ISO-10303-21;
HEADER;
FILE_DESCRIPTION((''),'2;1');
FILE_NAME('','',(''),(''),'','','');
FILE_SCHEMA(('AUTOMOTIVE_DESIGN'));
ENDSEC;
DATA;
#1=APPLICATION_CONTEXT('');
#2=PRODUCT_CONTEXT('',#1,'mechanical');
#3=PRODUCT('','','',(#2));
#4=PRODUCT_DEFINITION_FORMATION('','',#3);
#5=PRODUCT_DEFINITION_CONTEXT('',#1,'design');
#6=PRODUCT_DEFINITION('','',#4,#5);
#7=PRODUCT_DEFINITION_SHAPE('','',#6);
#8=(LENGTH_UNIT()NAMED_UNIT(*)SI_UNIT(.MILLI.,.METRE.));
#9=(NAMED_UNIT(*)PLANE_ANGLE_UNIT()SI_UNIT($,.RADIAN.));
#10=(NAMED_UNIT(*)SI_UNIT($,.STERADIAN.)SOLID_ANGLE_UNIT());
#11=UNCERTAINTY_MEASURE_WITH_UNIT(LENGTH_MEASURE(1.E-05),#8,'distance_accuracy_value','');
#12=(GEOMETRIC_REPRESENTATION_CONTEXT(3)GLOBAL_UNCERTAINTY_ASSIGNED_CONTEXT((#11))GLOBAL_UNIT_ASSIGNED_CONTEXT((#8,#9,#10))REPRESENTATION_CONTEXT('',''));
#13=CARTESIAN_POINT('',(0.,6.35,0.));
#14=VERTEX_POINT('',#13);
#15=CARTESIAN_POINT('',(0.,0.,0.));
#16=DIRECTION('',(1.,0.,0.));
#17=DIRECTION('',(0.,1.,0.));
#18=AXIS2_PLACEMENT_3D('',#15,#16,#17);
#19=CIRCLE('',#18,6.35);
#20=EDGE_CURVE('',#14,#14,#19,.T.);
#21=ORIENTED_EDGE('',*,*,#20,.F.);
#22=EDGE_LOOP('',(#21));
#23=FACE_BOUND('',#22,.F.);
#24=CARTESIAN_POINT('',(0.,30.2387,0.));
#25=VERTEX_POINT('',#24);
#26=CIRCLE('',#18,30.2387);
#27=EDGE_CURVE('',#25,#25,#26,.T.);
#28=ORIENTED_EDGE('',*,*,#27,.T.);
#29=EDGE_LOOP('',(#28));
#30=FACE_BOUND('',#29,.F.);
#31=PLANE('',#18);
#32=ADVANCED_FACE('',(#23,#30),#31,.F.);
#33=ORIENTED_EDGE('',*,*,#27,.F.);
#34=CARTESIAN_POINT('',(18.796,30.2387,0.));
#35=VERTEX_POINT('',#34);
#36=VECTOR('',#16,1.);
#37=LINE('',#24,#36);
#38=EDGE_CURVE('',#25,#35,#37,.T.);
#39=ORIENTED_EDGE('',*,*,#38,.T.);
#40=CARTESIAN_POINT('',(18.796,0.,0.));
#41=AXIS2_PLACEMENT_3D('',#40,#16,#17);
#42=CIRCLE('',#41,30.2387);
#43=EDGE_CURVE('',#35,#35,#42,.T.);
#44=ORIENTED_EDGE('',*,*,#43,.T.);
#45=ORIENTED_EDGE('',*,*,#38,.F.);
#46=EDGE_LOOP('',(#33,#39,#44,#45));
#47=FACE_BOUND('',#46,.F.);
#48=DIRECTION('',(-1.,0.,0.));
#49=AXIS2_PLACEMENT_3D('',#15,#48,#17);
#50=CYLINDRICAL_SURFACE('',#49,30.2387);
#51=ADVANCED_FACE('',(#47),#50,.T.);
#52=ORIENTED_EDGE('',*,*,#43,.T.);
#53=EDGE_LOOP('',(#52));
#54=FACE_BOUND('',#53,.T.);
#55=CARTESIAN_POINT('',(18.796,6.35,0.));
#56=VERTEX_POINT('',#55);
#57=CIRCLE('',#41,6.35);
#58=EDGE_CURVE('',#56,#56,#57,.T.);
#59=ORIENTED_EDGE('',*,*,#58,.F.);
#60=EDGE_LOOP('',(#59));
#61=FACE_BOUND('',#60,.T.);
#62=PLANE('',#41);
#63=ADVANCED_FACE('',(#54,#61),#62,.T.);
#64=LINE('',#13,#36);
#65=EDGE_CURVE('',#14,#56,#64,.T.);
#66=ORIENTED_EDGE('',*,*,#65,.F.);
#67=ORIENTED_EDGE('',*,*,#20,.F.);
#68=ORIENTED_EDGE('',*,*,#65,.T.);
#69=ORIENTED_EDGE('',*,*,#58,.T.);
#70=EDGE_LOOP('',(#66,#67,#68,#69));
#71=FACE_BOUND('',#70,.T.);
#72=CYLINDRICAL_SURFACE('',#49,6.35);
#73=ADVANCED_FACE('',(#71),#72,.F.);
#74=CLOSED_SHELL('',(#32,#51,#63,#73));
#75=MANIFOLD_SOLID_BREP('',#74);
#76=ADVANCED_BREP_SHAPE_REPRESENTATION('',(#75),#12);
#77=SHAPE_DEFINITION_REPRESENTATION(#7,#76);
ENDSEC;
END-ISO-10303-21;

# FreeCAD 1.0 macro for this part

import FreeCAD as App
import Part
import Sketcher
Q = App.Units.Quantity

doc = App.newDocument("Part")
body = doc.addObject("PartDesign::Body", "Body")

# Sketch on YZ plane
sketch1 = body.newObject("Sketcher::SketchObject", "Sketch")
sketch1.AttachmentSupport = (doc.getObject("YZ_Plane"), [""])
sketch1.MapMode = "FlatFace"
sketch1.addGeometry(Part.Circle(App.Vector(0, 0, 0), App.Vector(0, 0, 1), 30), False)
sketch1.addGeometry(Part.Circle(App.Vector(0, 0, 0), App.Vector(0, 0, 1), 6), False)
sketch1.addConstraint(Sketcher.Constraint("Coincident", 0, 3, -1, 1))
sketch1.addConstraint(Sketcher.Constraint("Coincident", 1, 3, -1, 1))
sketch1.addConstraint(Sketcher.Constraint("Diameter", 1, Q("0.5 in")))
sketch1.addConstraint(Sketcher.Constraint("Diameter", 0, Q("2.381 in")))
pad1 = body.newObject("PartDesign::Pad", "Pad")
pad1.Profile = sketch1
pad1.Length = Q("0.74 in")

doc.recompute()
